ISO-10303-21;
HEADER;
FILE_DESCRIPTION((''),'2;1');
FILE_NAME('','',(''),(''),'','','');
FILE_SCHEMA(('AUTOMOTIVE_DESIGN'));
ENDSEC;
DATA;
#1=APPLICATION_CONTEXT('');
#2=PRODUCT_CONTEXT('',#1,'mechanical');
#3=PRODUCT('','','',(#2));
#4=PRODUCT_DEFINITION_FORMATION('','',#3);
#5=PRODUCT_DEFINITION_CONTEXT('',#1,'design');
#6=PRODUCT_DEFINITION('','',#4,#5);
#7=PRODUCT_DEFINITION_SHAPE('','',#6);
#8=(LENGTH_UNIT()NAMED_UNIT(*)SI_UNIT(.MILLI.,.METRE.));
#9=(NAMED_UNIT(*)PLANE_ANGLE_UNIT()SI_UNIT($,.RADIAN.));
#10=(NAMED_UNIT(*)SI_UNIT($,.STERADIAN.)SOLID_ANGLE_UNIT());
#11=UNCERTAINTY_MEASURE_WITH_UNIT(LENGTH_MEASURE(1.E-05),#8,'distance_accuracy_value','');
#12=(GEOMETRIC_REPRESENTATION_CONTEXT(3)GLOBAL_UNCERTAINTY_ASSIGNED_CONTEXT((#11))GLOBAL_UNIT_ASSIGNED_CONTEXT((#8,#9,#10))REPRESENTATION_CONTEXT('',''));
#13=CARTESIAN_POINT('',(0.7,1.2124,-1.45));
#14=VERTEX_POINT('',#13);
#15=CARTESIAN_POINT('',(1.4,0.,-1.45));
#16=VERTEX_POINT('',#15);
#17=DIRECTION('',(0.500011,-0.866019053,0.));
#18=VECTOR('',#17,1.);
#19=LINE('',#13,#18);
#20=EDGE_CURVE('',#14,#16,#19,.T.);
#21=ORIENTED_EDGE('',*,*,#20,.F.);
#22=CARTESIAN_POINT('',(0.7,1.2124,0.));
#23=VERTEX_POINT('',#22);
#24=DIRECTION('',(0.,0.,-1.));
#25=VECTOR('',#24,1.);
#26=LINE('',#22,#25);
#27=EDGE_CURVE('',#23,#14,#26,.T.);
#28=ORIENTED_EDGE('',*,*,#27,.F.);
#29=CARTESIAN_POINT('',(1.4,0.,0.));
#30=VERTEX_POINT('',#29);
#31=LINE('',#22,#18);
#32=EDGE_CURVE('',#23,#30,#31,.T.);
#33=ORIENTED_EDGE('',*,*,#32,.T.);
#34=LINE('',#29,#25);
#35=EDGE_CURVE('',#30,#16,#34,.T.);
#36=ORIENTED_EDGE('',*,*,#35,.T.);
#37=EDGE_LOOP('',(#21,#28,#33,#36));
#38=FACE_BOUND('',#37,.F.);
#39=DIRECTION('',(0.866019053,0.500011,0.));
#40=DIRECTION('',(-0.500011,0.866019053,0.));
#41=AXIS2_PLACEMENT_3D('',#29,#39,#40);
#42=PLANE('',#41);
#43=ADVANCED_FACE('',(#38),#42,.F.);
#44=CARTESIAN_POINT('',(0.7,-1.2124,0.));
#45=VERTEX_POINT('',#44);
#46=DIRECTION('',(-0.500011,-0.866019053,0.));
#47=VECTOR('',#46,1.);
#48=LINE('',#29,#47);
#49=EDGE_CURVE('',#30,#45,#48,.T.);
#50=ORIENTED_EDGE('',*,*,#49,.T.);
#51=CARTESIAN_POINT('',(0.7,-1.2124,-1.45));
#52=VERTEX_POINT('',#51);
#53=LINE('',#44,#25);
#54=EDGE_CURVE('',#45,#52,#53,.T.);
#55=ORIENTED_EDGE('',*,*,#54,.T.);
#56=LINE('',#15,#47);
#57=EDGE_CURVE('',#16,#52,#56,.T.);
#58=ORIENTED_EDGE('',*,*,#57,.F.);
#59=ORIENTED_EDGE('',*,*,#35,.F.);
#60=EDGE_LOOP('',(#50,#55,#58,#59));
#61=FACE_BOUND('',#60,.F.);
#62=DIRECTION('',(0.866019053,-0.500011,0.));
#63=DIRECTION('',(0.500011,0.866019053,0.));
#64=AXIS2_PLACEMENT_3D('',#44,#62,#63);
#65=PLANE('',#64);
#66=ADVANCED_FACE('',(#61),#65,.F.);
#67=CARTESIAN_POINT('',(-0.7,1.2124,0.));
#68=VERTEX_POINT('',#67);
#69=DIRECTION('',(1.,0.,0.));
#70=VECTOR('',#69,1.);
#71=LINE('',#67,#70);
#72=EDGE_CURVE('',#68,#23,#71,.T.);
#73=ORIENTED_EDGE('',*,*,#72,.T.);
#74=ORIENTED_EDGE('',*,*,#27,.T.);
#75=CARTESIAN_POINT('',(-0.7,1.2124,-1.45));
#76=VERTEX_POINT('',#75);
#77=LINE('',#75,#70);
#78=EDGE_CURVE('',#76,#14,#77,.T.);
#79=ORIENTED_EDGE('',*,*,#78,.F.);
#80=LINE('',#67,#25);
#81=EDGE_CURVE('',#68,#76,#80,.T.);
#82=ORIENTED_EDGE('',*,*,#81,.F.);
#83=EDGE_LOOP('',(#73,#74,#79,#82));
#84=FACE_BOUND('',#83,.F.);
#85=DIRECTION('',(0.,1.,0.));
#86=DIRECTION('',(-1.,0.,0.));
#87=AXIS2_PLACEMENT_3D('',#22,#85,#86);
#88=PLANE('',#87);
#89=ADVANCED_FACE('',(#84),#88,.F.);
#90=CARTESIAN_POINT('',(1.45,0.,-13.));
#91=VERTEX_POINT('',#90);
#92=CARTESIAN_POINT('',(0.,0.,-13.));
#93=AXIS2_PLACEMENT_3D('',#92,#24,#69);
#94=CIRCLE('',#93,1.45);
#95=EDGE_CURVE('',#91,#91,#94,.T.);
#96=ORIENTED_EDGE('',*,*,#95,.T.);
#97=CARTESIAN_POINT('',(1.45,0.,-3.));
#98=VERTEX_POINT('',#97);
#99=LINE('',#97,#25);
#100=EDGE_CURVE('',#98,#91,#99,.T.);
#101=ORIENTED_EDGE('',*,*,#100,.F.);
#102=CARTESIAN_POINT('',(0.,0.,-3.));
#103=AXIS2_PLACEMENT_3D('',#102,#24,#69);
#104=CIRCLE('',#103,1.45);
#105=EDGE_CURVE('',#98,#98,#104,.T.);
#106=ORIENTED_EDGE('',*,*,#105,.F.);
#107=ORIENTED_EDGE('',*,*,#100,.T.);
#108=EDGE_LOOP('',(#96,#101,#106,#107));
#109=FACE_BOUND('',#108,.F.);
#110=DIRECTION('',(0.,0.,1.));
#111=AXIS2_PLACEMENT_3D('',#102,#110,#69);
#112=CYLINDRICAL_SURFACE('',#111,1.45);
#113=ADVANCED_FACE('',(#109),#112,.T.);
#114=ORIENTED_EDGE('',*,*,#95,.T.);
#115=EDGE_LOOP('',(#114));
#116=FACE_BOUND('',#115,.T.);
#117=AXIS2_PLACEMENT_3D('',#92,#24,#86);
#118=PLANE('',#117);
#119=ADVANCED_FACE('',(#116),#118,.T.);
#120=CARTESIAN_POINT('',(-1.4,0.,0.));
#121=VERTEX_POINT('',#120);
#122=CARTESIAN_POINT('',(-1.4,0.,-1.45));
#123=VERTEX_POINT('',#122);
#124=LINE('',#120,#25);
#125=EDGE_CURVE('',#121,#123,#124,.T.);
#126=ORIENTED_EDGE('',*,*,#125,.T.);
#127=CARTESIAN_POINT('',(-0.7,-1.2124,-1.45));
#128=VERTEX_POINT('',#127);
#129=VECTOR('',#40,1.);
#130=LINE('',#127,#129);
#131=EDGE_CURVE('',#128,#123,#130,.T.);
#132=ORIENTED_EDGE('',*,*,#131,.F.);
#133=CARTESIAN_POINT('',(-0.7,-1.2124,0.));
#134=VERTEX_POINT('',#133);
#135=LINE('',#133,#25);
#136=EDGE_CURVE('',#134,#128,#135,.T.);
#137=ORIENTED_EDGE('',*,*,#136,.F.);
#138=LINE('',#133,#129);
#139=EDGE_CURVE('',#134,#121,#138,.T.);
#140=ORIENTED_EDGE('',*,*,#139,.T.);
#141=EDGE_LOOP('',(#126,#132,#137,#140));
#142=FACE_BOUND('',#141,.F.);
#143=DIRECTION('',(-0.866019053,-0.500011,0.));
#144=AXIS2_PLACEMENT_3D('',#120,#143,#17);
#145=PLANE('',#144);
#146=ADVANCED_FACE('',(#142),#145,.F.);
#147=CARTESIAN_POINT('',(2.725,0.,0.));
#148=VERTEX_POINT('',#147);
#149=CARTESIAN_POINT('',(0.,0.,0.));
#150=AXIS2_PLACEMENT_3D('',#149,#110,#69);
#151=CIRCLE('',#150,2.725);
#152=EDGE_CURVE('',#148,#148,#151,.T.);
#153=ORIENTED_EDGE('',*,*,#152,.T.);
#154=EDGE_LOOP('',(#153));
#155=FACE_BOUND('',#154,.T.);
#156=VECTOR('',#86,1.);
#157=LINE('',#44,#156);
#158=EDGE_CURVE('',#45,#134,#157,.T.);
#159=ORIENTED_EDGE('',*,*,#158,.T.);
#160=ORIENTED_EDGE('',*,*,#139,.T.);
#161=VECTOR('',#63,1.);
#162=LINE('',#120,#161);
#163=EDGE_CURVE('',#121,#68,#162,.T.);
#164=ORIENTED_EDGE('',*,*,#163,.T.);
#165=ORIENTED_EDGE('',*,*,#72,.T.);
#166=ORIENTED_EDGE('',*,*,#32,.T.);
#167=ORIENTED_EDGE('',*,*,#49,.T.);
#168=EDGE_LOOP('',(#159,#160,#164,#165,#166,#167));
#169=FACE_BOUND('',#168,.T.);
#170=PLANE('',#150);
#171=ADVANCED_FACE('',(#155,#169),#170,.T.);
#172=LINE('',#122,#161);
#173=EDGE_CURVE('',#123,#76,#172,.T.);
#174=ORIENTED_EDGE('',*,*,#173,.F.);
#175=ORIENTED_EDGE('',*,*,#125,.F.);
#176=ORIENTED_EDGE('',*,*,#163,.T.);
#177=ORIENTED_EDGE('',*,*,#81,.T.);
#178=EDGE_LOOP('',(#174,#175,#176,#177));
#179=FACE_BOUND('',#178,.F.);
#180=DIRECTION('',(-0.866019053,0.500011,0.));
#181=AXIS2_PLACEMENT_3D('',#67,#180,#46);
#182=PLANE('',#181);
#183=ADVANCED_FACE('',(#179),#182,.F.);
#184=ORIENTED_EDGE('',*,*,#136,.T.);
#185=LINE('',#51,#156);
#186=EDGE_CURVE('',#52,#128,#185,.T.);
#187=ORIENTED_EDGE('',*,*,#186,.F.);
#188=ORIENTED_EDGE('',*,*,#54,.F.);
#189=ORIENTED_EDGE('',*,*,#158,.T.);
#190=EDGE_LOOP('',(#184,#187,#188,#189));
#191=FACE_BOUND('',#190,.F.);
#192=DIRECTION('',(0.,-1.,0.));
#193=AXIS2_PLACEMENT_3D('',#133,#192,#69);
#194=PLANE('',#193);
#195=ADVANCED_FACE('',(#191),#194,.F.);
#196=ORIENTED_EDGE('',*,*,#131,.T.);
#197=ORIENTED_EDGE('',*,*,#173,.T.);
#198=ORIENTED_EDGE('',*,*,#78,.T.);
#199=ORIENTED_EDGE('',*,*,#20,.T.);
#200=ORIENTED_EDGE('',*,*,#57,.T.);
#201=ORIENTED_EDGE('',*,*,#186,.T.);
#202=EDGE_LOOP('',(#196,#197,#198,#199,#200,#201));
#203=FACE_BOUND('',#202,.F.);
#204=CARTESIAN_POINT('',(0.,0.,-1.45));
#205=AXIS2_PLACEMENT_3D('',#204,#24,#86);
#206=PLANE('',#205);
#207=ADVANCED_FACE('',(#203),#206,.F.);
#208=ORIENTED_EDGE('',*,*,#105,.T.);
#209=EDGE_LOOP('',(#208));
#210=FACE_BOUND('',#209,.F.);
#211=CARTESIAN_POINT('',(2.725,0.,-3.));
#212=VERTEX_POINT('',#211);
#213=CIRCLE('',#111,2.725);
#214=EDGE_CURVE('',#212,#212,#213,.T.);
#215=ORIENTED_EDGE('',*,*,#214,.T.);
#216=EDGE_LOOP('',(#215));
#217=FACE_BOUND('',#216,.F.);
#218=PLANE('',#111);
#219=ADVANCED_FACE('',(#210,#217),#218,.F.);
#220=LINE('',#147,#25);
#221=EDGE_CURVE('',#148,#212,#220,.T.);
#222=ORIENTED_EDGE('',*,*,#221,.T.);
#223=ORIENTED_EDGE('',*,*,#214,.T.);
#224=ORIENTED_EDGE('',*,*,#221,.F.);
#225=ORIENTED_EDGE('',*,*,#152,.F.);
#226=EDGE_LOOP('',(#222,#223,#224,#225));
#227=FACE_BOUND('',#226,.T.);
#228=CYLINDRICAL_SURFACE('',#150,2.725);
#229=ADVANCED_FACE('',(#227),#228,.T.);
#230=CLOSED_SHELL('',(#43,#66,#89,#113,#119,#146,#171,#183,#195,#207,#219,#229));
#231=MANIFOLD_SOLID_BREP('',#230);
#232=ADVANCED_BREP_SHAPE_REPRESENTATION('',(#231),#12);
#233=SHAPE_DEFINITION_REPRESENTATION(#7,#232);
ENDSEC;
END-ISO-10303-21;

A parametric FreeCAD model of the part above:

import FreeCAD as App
import Part
import Sketcher
from FreeCAD import Vector
Q = App.Units.Quantity

doc = App.newDocument("Part")
body = doc.addObject("PartDesign::Body", "Body")

sketch1 = doc.addObject("Sketcher::SketchObject", "Sketch")
body.addObject(sketch1)
sketch1.AttachmentSupport = (doc.XY_Plane, [""])
sketch1.MapMode = "FlatFace"
sketch1.addGeometry(Part.Circle(Vector(0, 0, 0), Vector(0, 0, 1), 2.7), False)
sketch1.addConstraint(Sketcher.Constraint("Coincident", 0, 3, -1, 1))
sketch1.addConstraint(Sketcher.Constraint("Diameter", 0, Q("5.45 mm")))
pad1 = doc.addObject("PartDesign::Pad", "Pad")
body.addObject(pad1)
pad1.Profile = sketch1
pad1.Length = 3
pad1.Reversed = True

sketch2 = doc.addObject("Sketcher::SketchObject", "Sketch001")
body.addObject(sketch2)
sketch2.AttachmentSupport = (doc.XY_Plane, [""])
sketch2.MapMode = "FlatFace"
sketch2.addGeometry(Part.LineSegment(Vector(-1.4, 0, 0), Vector(-0.7, -1.2, 0)), False)
sketch2.addGeometry(Part.LineSegment(Vector(-0.7, -1.2, 0), Vector(0.7, -1.2, 0)), False)
sketch2.addGeometry(Part.LineSegment(Vector(0.7, -1.2, 0), Vector(1.4, 0, 0)), False)
sketch2.addGeometry(Part.LineSegment(Vector(1.4, 0, 0), Vector(0.7, 1.2, 0)), False)
sketch2.addGeometry(Part.LineSegment(Vector(0.7, 1.2, 0), Vector(-0.7, 1.2, 0)), False)
sketch2.addGeometry(Part.LineSegment(Vector(-0.7, 1.2, 0), Vector(-1.4, 0, 0)), False)
sketch2.addConstraint(Sketcher.Constraint("Coincident", 0, 2, 1, 1))
sketch2.addConstraint(Sketcher.Constraint("Coincident", 1, 2, 2, 1))
sketch2.addConstraint(Sketcher.Constraint("Coincident", 2, 2, 3, 1))
sketch2.addConstraint(Sketcher.Constraint("Coincident", 3, 2, 4, 1))
sketch2.addConstraint(Sketcher.Constraint("Coincident", 4, 2, 5, 1))
sketch2.addConstraint(Sketcher.Constraint("Coincident", 5, 2, 0, 1))
sketch2.addConstraint(Sketcher.Constraint("Horizontal", 1))
sketch2.addConstraint(Sketcher.Constraint("Horizontal", 4))
sketch2.addConstraint(Sketcher.Constraint("Symmetric", 0, 2, 3, 2, -1, 1))
sketch2.addConstraint(Sketcher.Constraint("Symmetric", 2, 2, 5, 2, -1, 1))
sketch2.addConstraint(Sketcher.Constraint("PointOnObject", 2, 2, -1))
sketch2.addConstraint(Sketcher.Constraint("Parallel", 2, 5))
sketch2.addConstraint(Sketcher.Constraint("Vertical", 1, 2, 3, 2))
sketch2.addConstraint(Sketcher.Constraint("Angle", 0, Q("-59.9993 deg")))
sketch2.addConstraint(Sketcher.Constraint("DistanceX", 1, 1, 1, 2, Q("1.4 mm")))
sketch2.addConstraint(Sketcher.Constraint("Distance", 0, Q("1.4 mm")))
pocket1 = doc.addObject("PartDesign::Pocket", "Pocket")
body.addObject(pocket1)
pocket1.Profile = sketch2
pocket1.Length = 1.45

sketch3 = doc.addObject("Sketcher::SketchObject", "Sketch002")
body.addObject(sketch3)
sketch3.AttachmentSupport = (doc.XY_Plane, [""])
sketch3.MapMode = "FlatFace"
sketch3.AttachmentOffset = App.Placement(Vector(0, 0, -3), App.Rotation())
sketch3.addGeometry(Part.Circle(Vector(0, 0, 0), Vector(0, 0, 1), 1.4), False)
sketch3.addConstraint(Sketcher.Constraint("Coincident", 0, 3, -1, 1))
sketch3.addConstraint(Sketcher.Constraint("Diameter", 0, Q("2.9 mm")))
pad2 = doc.addObject("PartDesign::Pad", "Pad001")
body.addObject(pad2)
pad2.Profile = sketch3
pad2.Length = 10
pad2.Reversed = True

doc.recompute()
